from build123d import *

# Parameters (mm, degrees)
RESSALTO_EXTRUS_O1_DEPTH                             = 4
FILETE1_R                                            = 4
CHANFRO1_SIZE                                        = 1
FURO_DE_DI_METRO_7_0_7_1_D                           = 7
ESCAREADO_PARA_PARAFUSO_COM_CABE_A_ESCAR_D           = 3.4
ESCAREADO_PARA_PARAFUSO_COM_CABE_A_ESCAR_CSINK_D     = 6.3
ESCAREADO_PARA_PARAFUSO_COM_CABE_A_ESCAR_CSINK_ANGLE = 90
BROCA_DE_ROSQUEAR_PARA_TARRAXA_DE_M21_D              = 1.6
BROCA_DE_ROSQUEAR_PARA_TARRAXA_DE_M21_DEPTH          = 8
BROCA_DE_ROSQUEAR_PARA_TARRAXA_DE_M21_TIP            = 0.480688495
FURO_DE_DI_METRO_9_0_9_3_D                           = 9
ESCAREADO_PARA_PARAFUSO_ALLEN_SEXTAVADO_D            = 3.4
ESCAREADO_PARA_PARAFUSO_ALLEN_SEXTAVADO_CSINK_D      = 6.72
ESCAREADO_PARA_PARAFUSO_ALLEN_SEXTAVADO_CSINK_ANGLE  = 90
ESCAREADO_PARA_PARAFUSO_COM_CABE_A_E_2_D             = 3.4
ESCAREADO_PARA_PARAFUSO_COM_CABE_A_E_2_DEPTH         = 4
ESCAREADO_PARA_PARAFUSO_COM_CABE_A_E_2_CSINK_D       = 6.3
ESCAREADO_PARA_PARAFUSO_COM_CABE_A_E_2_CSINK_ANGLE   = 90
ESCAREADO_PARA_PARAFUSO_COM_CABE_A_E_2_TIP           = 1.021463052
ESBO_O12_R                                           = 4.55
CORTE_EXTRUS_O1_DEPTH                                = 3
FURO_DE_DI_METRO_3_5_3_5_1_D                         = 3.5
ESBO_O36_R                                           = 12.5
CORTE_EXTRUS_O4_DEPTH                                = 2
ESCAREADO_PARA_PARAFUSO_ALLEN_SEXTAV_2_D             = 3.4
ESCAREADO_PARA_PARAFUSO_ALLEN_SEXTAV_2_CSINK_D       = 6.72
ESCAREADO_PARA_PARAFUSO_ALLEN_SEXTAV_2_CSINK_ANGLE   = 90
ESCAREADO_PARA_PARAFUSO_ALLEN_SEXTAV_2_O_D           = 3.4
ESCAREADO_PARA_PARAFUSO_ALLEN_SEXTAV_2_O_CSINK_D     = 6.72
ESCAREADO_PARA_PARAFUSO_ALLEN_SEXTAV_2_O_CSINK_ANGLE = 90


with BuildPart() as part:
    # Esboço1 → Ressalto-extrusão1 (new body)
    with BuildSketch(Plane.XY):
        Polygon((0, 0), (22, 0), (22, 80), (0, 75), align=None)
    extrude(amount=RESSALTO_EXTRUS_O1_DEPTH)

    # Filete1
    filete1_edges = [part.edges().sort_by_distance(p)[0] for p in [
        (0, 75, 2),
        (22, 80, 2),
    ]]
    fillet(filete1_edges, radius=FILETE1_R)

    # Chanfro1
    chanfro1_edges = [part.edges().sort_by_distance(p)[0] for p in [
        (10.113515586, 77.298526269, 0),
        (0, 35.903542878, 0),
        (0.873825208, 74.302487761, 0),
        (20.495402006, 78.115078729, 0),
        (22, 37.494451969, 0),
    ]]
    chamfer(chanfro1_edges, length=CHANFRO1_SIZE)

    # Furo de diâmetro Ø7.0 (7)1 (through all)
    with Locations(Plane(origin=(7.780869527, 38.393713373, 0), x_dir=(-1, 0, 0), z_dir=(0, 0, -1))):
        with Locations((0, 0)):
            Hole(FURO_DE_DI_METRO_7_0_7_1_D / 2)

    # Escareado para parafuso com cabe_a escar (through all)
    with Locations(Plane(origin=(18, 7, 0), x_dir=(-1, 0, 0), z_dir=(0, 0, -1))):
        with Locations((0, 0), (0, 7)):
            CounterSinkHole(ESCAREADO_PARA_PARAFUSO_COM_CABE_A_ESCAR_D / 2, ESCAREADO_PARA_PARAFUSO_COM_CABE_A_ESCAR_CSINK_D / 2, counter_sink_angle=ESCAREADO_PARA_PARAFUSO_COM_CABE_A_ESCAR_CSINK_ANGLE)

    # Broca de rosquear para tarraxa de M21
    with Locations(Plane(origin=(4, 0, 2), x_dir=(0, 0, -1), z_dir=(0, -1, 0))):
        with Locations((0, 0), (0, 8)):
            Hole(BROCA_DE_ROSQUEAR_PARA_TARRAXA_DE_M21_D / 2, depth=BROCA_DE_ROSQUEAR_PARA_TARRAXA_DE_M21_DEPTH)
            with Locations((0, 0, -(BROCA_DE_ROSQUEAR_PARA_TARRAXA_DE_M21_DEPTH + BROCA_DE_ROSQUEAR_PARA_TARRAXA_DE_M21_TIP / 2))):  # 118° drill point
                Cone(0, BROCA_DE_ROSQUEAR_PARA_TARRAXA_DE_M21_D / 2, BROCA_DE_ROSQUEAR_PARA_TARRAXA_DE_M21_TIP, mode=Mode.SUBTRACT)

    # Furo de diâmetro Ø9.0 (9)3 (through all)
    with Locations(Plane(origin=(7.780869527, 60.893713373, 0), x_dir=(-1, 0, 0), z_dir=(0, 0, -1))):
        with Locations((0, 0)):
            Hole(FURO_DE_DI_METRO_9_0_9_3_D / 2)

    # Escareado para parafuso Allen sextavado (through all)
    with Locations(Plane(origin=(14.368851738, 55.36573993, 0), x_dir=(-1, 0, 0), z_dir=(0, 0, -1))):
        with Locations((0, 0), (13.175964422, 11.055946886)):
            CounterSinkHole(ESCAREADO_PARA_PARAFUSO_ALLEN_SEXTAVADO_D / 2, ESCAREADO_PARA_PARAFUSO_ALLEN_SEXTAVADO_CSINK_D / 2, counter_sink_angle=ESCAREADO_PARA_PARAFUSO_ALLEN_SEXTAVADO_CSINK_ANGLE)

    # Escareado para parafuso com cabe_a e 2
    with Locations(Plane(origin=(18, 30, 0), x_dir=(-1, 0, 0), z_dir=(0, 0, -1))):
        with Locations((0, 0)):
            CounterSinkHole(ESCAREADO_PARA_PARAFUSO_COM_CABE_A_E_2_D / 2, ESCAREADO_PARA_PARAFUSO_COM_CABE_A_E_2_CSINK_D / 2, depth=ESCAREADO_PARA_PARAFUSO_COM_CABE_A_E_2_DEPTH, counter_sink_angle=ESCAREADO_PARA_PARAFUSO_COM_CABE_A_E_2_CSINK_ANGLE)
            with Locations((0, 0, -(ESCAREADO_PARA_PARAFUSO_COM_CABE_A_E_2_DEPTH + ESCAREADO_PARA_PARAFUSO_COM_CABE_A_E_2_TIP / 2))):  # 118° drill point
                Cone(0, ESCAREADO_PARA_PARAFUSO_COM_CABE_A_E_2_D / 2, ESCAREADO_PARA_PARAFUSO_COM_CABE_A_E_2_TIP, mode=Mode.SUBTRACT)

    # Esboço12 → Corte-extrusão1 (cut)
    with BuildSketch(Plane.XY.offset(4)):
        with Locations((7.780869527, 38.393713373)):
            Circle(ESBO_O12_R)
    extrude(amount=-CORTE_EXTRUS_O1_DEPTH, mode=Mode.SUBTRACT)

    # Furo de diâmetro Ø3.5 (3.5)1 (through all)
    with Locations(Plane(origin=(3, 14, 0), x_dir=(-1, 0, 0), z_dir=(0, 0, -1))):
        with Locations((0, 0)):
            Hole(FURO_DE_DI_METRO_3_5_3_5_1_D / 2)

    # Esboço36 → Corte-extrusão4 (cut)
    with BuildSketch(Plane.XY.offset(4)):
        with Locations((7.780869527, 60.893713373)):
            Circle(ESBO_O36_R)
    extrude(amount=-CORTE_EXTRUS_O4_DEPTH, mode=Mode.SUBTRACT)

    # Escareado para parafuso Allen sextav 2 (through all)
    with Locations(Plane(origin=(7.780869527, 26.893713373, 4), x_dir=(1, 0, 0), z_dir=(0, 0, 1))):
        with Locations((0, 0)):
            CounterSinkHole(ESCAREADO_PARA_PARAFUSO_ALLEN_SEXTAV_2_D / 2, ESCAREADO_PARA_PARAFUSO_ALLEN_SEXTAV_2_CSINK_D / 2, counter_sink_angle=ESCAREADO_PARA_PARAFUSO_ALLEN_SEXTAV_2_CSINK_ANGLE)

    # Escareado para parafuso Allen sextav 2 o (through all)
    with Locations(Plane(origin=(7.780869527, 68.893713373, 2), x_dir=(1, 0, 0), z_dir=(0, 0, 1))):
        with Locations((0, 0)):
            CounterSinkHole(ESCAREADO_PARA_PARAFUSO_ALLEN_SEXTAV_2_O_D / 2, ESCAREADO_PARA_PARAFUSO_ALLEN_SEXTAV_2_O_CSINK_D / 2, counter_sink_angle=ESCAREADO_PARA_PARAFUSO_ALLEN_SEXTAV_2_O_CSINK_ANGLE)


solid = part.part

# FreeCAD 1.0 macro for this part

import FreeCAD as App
import Part
import Sketcher
Q = App.Units.Quantity


def edges_at(feature, points):
    """Names of the edges that pass closest to the given points."""
    edges = feature.Shape.Edges
    near = lambda p: min(range(len(edges)), key=lambda i: edges[i].distToShape(Part.Vertex(*p))[0])
    return sorted({f"Edge{near(p) + 1}" for p in points})

doc = App.newDocument("Part")
params = doc.addObject("Spreadsheet::Sheet", "Params")
for row, (alias, value) in enumerate([
    ("sketch1_width", "22 mm"),
    ("sketch1_height", "80 mm"),
    ("sketch1_height2", "75 mm"),
    ("pad1_length", "4 mm"),
    ("fillet_radius", "4 mm"),
    ("chamfer_size", "1 mm"),
    ("sketch2_diameter", "7 mm"),
    ("hole_diameter", "7 mm"),
    ("sketch3_diameter", "3.4 mm"),
    ("hole2_diameter", "3.4 mm"),
    ("hole2_csink_diameter", "6.3 mm"),
    ("sketch4_diameter", "1.6 mm"),
    ("hole3_diameter", "1.6 mm"),
    ("hole3_depth", "8 mm"),
    ("sketch5_diameter", "9 mm"),
    ("hole4_diameter", "9 mm"),
    ("sketch6_diameter", "3.4 mm"),
    ("hole5_diameter", "3.4 mm"),
    ("hole5_csink_diameter", "6.72 mm"),
    ("sketch7_diameter", "3.4 mm"),
    ("hole6_diameter", "3.4 mm"),
    ("hole6_depth", "4 mm"),
    ("hole6_csink_diameter", "6.3 mm"),
    ("sketch8_diameter", "9.1 mm"),
    ("pocket1_length", "3 mm"),
    ("sketch9_diameter", "3.5 mm"),
    ("hole7_diameter", "3.5 mm"),
    ("sketch10_diameter", "25 mm"),
    ("pocket2_length", "2 mm"),
    ("sketch11_diameter", "3.4 mm"),
    ("hole8_diameter", "3.4 mm"),
    ("hole8_csink_diameter", "6.72 mm"),
    ("sketch12_diameter", "3.4 mm"),
    ("hole9_diameter", "3.4 mm"),
    ("hole9_csink_diameter", "6.72 mm"),
], start=1):
    params.set(f"A{row}", alias)
    params.set(f"B{row}", "=" + value)
    params.setAlias(f"B{row}", alias)

body = doc.addObject("PartDesign::Body", "Body")

sketch1 = body.newObject("Sketcher::SketchObject", "Sketch")
sketch1.AttachmentSupport = (doc.getObject("XY_Plane"), [""])
sketch1.MapMode = "FlatFace"
sketch1.addGeometry([
    Part.LineSegment(App.Vector(0, 0, 0), App.Vector(22, 0, 0)),
    Part.LineSegment(App.Vector(22, 0, 0), App.Vector(22, 80, 0)),
    Part.LineSegment(App.Vector(22, 80, 0), App.Vector(0, 75, 0)),
    Part.LineSegment(App.Vector(0, 75, 0), App.Vector(0, 0, 0)),
], False)
sketch1.addConstraint([
    Sketcher.Constraint("Coincident", 0, 2, 1, 1),
    Sketcher.Constraint("Coincident", 1, 2, 2, 1),
    Sketcher.Constraint("Coincident", 2, 2, 3, 1),
    Sketcher.Constraint("Coincident", 3, 2, 0, 1),
    Sketcher.Constraint("Horizontal", 0),
    Sketcher.Constraint("Vertical", 1),
    Sketcher.Constraint("Vertical", 3),
    Sketcher.Constraint("Coincident", 3, 2, -1, 1),
    Sketcher.Constraint("DistanceX", 0, 1, 0, 2, Q("22 mm")),
    Sketcher.Constraint("DistanceY", 1, 1, 1, 2, Q("80 mm")),
    Sketcher.Constraint("DistanceY", 3, 2, 3, 1, Q("75 mm")),
])
sketch1.setExpression("Constraints[8]", "Params.sketch1_width")
sketch1.setExpression("Constraints[9]", "Params.sketch1_height")
sketch1.setExpression("Constraints[10]", "Params.sketch1_height2")
pad1 = body.newObject("PartDesign::Pad", "Pad")
pad1.Profile = sketch1
pad1.setExpression("Length", "Params.pad1_length")
doc.recompute()

fillet = body.newObject("PartDesign::Fillet", "Fillet")
fillet.Base = (pad1, edges_at(pad1, [(0, 75, 2), (22, 80, 2)]))
fillet.setExpression("Radius", "Params.fillet_radius")
doc.recompute()

chamfer = body.newObject("PartDesign::Chamfer", "Chamfer")
chamfer.Base = (fillet, edges_at(fillet, [
    (10.114, 77.299, 0),
    (0, 35.904, 0),
    (0.874, 74.302, 0),
    (20.495, 78.115, 0),
    (22, 37.494, 0),
]))
chamfer.setExpression("Size", "Params.chamfer_size")

sketch2 = body.newObject("Sketcher::SketchObject", "Sketch001")
sketch2.AttachmentSupport = (doc.getObject("XY_Plane"), [""])
sketch2.MapMode = "FlatFace"
sketch2.addGeometry(Part.Circle(App.Vector(7.8, 38.4, 0), App.Vector(0, 0, 1), 3.5), False)
sketch2.addConstraint([
    Sketcher.Constraint("Diameter", 0, Q("7 mm")),
    Sketcher.Constraint("DistanceX", -1, 1, 0, 3, Q("7.78087 mm")),
    Sketcher.Constraint("DistanceY", -1, 1, 0, 3, Q("38.393713 mm")),
])
sketch2.setExpression("Constraints[0]", "Params.sketch2_diameter")
doc.recompute()
hole = body.newObject("PartDesign::Hole", "Hole")
hole.Profile = sketch2
hole.ThreadType = "None"
hole.setExpression("Diameter", "Params.hole_diameter")
hole.DepthType = "ThroughAll"
hole.Reversed = True

sketch3 = body.newObject("Sketcher::SketchObject", "Sketch002")
sketch3.AttachmentSupport = (doc.getObject("XY_Plane"), [""])
sketch3.MapMode = "FlatFace"
sketch3.addGeometry([
    Part.Circle(App.Vector(18, 7, 0), App.Vector(0, 0, 1), 1.7),
    Part.Circle(App.Vector(18, 14, 0), App.Vector(0, 0, 1), 1.7),
], False)
sketch3.addConstraint([
    Sketcher.Constraint("Equal", 0, 1),
    Sketcher.Constraint("Vertical", 0, 3, 1, 3),
    Sketcher.Constraint("Diameter", 0, Q("3.4 mm")),
    Sketcher.Constraint("DistanceX", -1, 1, 0, 3, Q("18 mm")),
    Sketcher.Constraint("DistanceY", -1, 1, 0, 3, Q("7 mm")),
    Sketcher.Constraint("DistanceY", -1, 1, 1, 3, Q("14 mm")),
])
sketch3.setExpression("Constraints[2]", "Params.sketch3_diameter")
doc.recompute()
hole2 = body.newObject("PartDesign::Hole", "Hole001")
hole2.Profile = sketch3
hole2.ThreadType = "None"
hole2.setExpression("Diameter", "Params.hole2_diameter")
hole2.DepthType = "ThroughAll"
hole2.HoleCutType = "Countersink"
hole2.setExpression("HoleCutDiameter", "Params.hole2_csink_diameter")
hole2.HoleCutCountersinkAngle = 90
hole2.Reversed = True

sketch4 = body.newObject("Sketcher::SketchObject", "Sketch003")
sketch4.AttachmentSupport = (doc.getObject("XZ_Plane"), [""])
sketch4.MapMode = "FlatFace"
sketch4.addGeometry([
    Part.Circle(App.Vector(4, 2, 0), App.Vector(0, 0, 1), 0.8),
    Part.Circle(App.Vector(12, 2, 0), App.Vector(0, 0, 1), 0.8),
], False)
sketch4.addConstraint([
    Sketcher.Constraint("Equal", 0, 1),
    Sketcher.Constraint("Horizontal", 0, 3, 1, 3),
    Sketcher.Constraint("Diameter", 0, Q("1.6 mm")),
    Sketcher.Constraint("DistanceX", -1, 1, 0, 3, Q("4 mm")),
    Sketcher.Constraint("DistanceY", -1, 1, 0, 3, Q("2 mm")),
    Sketcher.Constraint("DistanceX", -1, 1, 1, 3, Q("12 mm")),
])
sketch4.setExpression("Constraints[2]", "Params.sketch4_diameter")
doc.recompute()
hole3 = body.newObject("PartDesign::Hole", "Hole002")
hole3.Profile = sketch4
hole3.ThreadType = "None"
hole3.setExpression("Diameter", "Params.hole3_diameter")
hole3.DepthType = "Dimension"
hole3.setExpression("Depth", "Params.hole3_depth")
hole3.DrillPoint = "Angled"
hole3.DrillPointAngle = 118

sketch5 = body.newObject("Sketcher::SketchObject", "Sketch004")
sketch5.AttachmentSupport = (doc.getObject("XY_Plane"), [""])
sketch5.MapMode = "FlatFace"
sketch5.addGeometry(Part.Circle(App.Vector(7.8, 60.9, 0), App.Vector(0, 0, 1), 4.5), False)
sketch5.addConstraint([
    Sketcher.Constraint("Diameter", 0, Q("9 mm")),
    Sketcher.Constraint("DistanceX", -1, 1, 0, 3, Q("7.78087 mm")),
    Sketcher.Constraint("DistanceY", -1, 1, 0, 3, Q("60.893713 mm")),
])
sketch5.setExpression("Constraints[0]", "Params.sketch5_diameter")
doc.recompute()
hole4 = body.newObject("PartDesign::Hole", "Hole003")
hole4.Profile = sketch5
hole4.ThreadType = "None"
hole4.setExpression("Diameter", "Params.hole4_diameter")
hole4.DepthType = "ThroughAll"
hole4.Reversed = True

sketch6 = body.newObject("Sketcher::SketchObject", "Sketch005")
sketch6.AttachmentSupport = (doc.getObject("XY_Plane"), [""])
sketch6.MapMode = "FlatFace"
sketch6.addGeometry([
    Part.Circle(App.Vector(14.4, 55.4, 0), App.Vector(0, 0, 1), 1.7),
    Part.Circle(App.Vector(1.2, 66.4, 0), App.Vector(0, 0, 1), 1.7),
], False)
sketch6.addConstraint([
    Sketcher.Constraint("Equal", 0, 1),
    Sketcher.Constraint("Diameter", 0, Q("3.4 mm")),
    Sketcher.Constraint("DistanceX", -1, 1, 0, 3, Q("14.368852 mm")),
    Sketcher.Constraint("DistanceY", -1, 1, 0, 3, Q("55.36574 mm")),
    Sketcher.Constraint("DistanceX", -1, 1, 1, 3, Q("1.192887 mm")),
    Sketcher.Constraint("DistanceY", -1, 1, 1, 3, Q("66.421687 mm")),
])
sketch6.setExpression("Constraints[1]", "Params.sketch6_diameter")
doc.recompute()
hole5 = body.newObject("PartDesign::Hole", "Hole004")
hole5.Profile = sketch6
hole5.ThreadType = "None"
hole5.setExpression("Diameter", "Params.hole5_diameter")
hole5.DepthType = "ThroughAll"
hole5.HoleCutType = "Countersink"
hole5.setExpression("HoleCutDiameter", "Params.hole5_csink_diameter")
hole5.HoleCutCountersinkAngle = 90
hole5.Reversed = True

sketch7 = body.newObject("Sketcher::SketchObject", "Sketch006")
sketch7.AttachmentSupport = (doc.getObject("XY_Plane"), [""])
sketch7.MapMode = "FlatFace"
sketch7.addGeometry(Part.Circle(App.Vector(18, 30, 0), App.Vector(0, 0, 1), 1.7), False)
sketch7.addConstraint([
    Sketcher.Constraint("Diameter", 0, Q("3.4 mm")),
    Sketcher.Constraint("DistanceX", -1, 1, 0, 3, Q("18 mm")),
    Sketcher.Constraint("DistanceY", -1, 1, 0, 3, Q("30 mm")),
])
sketch7.setExpression("Constraints[0]", "Params.sketch7_diameter")
doc.recompute()
hole6 = body.newObject("PartDesign::Hole", "Hole005")
hole6.Profile = sketch7
hole6.ThreadType = "None"
hole6.setExpression("Diameter", "Params.hole6_diameter")
hole6.DepthType = "Dimension"
hole6.setExpression("Depth", "Params.hole6_depth")
hole6.DrillPoint = "Angled"
hole6.DrillPointAngle = 118
hole6.HoleCutType = "Countersink"
hole6.setExpression("HoleCutDiameter", "Params.hole6_csink_diameter")
hole6.HoleCutCountersinkAngle = 90
hole6.Reversed = True

sketch8 = body.newObject("Sketcher::SketchObject", "Sketch007")
sketch8.AttachmentSupport = (doc.getObject("XY_Plane"), [""])
sketch8.MapMode = "FlatFace"
sketch8.AttachmentOffset = App.Placement(App.Vector(0, 0, 4), App.Rotation())
sketch8.addGeometry(Part.Circle(App.Vector(7.8, 38.4, 0), App.Vector(0, 0, 1), 4.5), False)
sketch8.addConstraint([
    Sketcher.Constraint("Diameter", 0, Q("9.1 mm")),
    Sketcher.Constraint("DistanceX", -1, 1, 0, 3, Q("7.78087 mm")),
    Sketcher.Constraint("DistanceY", -1, 1, 0, 3, Q("38.393713 mm")),
])
sketch8.setExpression("Constraints[0]", "Params.sketch8_diameter")
pocket1 = body.newObject("PartDesign::Pocket", "Pocket")
pocket1.Profile = sketch8
pocket1.setExpression("Length", "Params.pocket1_length")

sketch9 = body.newObject("Sketcher::SketchObject", "Sketch008")
sketch9.AttachmentSupport = (doc.getObject("XY_Plane"), [""])
sketch9.MapMode = "FlatFace"
sketch9.addGeometry(Part.Circle(App.Vector(3, 14, 0), App.Vector(0, 0, 1), 1.8), False)
sketch9.addConstraint([
    Sketcher.Constraint("Diameter", 0, Q("3.5 mm")),
    Sketcher.Constraint("DistanceX", -1, 1, 0, 3, Q("3 mm")),
    Sketcher.Constraint("DistanceY", -1, 1, 0, 3, Q("14 mm")),
])
sketch9.setExpression("Constraints[0]", "Params.sketch9_diameter")
doc.recompute()
hole7 = body.newObject("PartDesign::Hole", "Hole006")
hole7.Profile = sketch9
hole7.ThreadType = "None"
hole7.setExpression("Diameter", "Params.hole7_diameter")
hole7.DepthType = "ThroughAll"
hole7.Reversed = True

sketch10 = body.newObject("Sketcher::SketchObject", "Sketch009")
sketch10.AttachmentSupport = (doc.getObject("XY_Plane"), [""])
sketch10.MapMode = "FlatFace"
sketch10.AttachmentOffset = App.Placement(App.Vector(0, 0, 4), App.Rotation())
sketch10.addGeometry(Part.Circle(App.Vector(8, 61, 0), App.Vector(0, 0, 1), 12), False)
sketch10.addConstraint([
    Sketcher.Constraint("Diameter", 0, Q("25 mm")),
    Sketcher.Constraint("DistanceX", -1, 1, 0, 3, Q("7.78087 mm")),
    Sketcher.Constraint("DistanceY", -1, 1, 0, 3, Q("60.893713 mm")),
])
sketch10.setExpression("Constraints[0]", "Params.sketch10_diameter")
pocket2 = body.newObject("PartDesign::Pocket", "Pocket001")
pocket2.Profile = sketch10
pocket2.setExpression("Length", "Params.pocket2_length")

sketch11 = body.newObject("Sketcher::SketchObject", "Sketch010")
sketch11.AttachmentSupport = (doc.getObject("XY_Plane"), [""])
sketch11.MapMode = "FlatFace"
sketch11.AttachmentOffset = App.Placement(App.Vector(0, 0, 4), App.Rotation())
sketch11.addGeometry(Part.Circle(App.Vector(7.8, 26.9, 0), App.Vector(0, 0, 1), 1.7), False)
sketch11.addConstraint([
    Sketcher.Constraint("Diameter", 0, Q("3.4 mm")),
    Sketcher.Constraint("DistanceX", -1, 1, 0, 3, Q("7.78087 mm")),
    Sketcher.Constraint("DistanceY", -1, 1, 0, 3, Q("26.893713 mm")),
])
sketch11.setExpression("Constraints[0]", "Params.sketch11_diameter")
doc.recompute()
hole8 = body.newObject("PartDesign::Hole", "Hole007")
hole8.Profile = sketch11
hole8.ThreadType = "None"
hole8.setExpression("Diameter", "Params.hole8_diameter")
hole8.DepthType = "ThroughAll"
hole8.HoleCutType = "Countersink"
hole8.setExpression("HoleCutDiameter", "Params.hole8_csink_diameter")
hole8.HoleCutCountersinkAngle = 90

sketch12 = body.newObject("Sketcher::SketchObject", "Sketch011")
sketch12.AttachmentSupport = (doc.getObject("XY_Plane"), [""])
sketch12.MapMode = "FlatFace"
sketch12.AttachmentOffset = App.Placement(App.Vector(0, 0, 2), App.Rotation())
sketch12.addGeometry(Part.Circle(App.Vector(7.8, 68.9, 0), App.Vector(0, 0, 1), 1.7), False)
sketch12.addConstraint([
    Sketcher.Constraint("Diameter", 0, Q("3.4 mm")),
    Sketcher.Constraint("DistanceX", -1, 1, 0, 3, Q("7.78087 mm")),
    Sketcher.Constraint("DistanceY", -1, 1, 0, 3, Q("68.893713 mm")),
])
sketch12.setExpression("Constraints[0]", "Params.sketch12_diameter")
doc.recompute()
hole9 = body.newObject("PartDesign::Hole", "Hole008")
hole9.Profile = sketch12
hole9.ThreadType = "None"
hole9.setExpression("Diameter", "Params.hole9_diameter")
hole9.DepthType = "ThroughAll"
hole9.HoleCutType = "Countersink"
hole9.setExpression("HoleCutDiameter", "Params.hole9_csink_diameter")
hole9.HoleCutCountersinkAngle = 90

doc.recompute()
